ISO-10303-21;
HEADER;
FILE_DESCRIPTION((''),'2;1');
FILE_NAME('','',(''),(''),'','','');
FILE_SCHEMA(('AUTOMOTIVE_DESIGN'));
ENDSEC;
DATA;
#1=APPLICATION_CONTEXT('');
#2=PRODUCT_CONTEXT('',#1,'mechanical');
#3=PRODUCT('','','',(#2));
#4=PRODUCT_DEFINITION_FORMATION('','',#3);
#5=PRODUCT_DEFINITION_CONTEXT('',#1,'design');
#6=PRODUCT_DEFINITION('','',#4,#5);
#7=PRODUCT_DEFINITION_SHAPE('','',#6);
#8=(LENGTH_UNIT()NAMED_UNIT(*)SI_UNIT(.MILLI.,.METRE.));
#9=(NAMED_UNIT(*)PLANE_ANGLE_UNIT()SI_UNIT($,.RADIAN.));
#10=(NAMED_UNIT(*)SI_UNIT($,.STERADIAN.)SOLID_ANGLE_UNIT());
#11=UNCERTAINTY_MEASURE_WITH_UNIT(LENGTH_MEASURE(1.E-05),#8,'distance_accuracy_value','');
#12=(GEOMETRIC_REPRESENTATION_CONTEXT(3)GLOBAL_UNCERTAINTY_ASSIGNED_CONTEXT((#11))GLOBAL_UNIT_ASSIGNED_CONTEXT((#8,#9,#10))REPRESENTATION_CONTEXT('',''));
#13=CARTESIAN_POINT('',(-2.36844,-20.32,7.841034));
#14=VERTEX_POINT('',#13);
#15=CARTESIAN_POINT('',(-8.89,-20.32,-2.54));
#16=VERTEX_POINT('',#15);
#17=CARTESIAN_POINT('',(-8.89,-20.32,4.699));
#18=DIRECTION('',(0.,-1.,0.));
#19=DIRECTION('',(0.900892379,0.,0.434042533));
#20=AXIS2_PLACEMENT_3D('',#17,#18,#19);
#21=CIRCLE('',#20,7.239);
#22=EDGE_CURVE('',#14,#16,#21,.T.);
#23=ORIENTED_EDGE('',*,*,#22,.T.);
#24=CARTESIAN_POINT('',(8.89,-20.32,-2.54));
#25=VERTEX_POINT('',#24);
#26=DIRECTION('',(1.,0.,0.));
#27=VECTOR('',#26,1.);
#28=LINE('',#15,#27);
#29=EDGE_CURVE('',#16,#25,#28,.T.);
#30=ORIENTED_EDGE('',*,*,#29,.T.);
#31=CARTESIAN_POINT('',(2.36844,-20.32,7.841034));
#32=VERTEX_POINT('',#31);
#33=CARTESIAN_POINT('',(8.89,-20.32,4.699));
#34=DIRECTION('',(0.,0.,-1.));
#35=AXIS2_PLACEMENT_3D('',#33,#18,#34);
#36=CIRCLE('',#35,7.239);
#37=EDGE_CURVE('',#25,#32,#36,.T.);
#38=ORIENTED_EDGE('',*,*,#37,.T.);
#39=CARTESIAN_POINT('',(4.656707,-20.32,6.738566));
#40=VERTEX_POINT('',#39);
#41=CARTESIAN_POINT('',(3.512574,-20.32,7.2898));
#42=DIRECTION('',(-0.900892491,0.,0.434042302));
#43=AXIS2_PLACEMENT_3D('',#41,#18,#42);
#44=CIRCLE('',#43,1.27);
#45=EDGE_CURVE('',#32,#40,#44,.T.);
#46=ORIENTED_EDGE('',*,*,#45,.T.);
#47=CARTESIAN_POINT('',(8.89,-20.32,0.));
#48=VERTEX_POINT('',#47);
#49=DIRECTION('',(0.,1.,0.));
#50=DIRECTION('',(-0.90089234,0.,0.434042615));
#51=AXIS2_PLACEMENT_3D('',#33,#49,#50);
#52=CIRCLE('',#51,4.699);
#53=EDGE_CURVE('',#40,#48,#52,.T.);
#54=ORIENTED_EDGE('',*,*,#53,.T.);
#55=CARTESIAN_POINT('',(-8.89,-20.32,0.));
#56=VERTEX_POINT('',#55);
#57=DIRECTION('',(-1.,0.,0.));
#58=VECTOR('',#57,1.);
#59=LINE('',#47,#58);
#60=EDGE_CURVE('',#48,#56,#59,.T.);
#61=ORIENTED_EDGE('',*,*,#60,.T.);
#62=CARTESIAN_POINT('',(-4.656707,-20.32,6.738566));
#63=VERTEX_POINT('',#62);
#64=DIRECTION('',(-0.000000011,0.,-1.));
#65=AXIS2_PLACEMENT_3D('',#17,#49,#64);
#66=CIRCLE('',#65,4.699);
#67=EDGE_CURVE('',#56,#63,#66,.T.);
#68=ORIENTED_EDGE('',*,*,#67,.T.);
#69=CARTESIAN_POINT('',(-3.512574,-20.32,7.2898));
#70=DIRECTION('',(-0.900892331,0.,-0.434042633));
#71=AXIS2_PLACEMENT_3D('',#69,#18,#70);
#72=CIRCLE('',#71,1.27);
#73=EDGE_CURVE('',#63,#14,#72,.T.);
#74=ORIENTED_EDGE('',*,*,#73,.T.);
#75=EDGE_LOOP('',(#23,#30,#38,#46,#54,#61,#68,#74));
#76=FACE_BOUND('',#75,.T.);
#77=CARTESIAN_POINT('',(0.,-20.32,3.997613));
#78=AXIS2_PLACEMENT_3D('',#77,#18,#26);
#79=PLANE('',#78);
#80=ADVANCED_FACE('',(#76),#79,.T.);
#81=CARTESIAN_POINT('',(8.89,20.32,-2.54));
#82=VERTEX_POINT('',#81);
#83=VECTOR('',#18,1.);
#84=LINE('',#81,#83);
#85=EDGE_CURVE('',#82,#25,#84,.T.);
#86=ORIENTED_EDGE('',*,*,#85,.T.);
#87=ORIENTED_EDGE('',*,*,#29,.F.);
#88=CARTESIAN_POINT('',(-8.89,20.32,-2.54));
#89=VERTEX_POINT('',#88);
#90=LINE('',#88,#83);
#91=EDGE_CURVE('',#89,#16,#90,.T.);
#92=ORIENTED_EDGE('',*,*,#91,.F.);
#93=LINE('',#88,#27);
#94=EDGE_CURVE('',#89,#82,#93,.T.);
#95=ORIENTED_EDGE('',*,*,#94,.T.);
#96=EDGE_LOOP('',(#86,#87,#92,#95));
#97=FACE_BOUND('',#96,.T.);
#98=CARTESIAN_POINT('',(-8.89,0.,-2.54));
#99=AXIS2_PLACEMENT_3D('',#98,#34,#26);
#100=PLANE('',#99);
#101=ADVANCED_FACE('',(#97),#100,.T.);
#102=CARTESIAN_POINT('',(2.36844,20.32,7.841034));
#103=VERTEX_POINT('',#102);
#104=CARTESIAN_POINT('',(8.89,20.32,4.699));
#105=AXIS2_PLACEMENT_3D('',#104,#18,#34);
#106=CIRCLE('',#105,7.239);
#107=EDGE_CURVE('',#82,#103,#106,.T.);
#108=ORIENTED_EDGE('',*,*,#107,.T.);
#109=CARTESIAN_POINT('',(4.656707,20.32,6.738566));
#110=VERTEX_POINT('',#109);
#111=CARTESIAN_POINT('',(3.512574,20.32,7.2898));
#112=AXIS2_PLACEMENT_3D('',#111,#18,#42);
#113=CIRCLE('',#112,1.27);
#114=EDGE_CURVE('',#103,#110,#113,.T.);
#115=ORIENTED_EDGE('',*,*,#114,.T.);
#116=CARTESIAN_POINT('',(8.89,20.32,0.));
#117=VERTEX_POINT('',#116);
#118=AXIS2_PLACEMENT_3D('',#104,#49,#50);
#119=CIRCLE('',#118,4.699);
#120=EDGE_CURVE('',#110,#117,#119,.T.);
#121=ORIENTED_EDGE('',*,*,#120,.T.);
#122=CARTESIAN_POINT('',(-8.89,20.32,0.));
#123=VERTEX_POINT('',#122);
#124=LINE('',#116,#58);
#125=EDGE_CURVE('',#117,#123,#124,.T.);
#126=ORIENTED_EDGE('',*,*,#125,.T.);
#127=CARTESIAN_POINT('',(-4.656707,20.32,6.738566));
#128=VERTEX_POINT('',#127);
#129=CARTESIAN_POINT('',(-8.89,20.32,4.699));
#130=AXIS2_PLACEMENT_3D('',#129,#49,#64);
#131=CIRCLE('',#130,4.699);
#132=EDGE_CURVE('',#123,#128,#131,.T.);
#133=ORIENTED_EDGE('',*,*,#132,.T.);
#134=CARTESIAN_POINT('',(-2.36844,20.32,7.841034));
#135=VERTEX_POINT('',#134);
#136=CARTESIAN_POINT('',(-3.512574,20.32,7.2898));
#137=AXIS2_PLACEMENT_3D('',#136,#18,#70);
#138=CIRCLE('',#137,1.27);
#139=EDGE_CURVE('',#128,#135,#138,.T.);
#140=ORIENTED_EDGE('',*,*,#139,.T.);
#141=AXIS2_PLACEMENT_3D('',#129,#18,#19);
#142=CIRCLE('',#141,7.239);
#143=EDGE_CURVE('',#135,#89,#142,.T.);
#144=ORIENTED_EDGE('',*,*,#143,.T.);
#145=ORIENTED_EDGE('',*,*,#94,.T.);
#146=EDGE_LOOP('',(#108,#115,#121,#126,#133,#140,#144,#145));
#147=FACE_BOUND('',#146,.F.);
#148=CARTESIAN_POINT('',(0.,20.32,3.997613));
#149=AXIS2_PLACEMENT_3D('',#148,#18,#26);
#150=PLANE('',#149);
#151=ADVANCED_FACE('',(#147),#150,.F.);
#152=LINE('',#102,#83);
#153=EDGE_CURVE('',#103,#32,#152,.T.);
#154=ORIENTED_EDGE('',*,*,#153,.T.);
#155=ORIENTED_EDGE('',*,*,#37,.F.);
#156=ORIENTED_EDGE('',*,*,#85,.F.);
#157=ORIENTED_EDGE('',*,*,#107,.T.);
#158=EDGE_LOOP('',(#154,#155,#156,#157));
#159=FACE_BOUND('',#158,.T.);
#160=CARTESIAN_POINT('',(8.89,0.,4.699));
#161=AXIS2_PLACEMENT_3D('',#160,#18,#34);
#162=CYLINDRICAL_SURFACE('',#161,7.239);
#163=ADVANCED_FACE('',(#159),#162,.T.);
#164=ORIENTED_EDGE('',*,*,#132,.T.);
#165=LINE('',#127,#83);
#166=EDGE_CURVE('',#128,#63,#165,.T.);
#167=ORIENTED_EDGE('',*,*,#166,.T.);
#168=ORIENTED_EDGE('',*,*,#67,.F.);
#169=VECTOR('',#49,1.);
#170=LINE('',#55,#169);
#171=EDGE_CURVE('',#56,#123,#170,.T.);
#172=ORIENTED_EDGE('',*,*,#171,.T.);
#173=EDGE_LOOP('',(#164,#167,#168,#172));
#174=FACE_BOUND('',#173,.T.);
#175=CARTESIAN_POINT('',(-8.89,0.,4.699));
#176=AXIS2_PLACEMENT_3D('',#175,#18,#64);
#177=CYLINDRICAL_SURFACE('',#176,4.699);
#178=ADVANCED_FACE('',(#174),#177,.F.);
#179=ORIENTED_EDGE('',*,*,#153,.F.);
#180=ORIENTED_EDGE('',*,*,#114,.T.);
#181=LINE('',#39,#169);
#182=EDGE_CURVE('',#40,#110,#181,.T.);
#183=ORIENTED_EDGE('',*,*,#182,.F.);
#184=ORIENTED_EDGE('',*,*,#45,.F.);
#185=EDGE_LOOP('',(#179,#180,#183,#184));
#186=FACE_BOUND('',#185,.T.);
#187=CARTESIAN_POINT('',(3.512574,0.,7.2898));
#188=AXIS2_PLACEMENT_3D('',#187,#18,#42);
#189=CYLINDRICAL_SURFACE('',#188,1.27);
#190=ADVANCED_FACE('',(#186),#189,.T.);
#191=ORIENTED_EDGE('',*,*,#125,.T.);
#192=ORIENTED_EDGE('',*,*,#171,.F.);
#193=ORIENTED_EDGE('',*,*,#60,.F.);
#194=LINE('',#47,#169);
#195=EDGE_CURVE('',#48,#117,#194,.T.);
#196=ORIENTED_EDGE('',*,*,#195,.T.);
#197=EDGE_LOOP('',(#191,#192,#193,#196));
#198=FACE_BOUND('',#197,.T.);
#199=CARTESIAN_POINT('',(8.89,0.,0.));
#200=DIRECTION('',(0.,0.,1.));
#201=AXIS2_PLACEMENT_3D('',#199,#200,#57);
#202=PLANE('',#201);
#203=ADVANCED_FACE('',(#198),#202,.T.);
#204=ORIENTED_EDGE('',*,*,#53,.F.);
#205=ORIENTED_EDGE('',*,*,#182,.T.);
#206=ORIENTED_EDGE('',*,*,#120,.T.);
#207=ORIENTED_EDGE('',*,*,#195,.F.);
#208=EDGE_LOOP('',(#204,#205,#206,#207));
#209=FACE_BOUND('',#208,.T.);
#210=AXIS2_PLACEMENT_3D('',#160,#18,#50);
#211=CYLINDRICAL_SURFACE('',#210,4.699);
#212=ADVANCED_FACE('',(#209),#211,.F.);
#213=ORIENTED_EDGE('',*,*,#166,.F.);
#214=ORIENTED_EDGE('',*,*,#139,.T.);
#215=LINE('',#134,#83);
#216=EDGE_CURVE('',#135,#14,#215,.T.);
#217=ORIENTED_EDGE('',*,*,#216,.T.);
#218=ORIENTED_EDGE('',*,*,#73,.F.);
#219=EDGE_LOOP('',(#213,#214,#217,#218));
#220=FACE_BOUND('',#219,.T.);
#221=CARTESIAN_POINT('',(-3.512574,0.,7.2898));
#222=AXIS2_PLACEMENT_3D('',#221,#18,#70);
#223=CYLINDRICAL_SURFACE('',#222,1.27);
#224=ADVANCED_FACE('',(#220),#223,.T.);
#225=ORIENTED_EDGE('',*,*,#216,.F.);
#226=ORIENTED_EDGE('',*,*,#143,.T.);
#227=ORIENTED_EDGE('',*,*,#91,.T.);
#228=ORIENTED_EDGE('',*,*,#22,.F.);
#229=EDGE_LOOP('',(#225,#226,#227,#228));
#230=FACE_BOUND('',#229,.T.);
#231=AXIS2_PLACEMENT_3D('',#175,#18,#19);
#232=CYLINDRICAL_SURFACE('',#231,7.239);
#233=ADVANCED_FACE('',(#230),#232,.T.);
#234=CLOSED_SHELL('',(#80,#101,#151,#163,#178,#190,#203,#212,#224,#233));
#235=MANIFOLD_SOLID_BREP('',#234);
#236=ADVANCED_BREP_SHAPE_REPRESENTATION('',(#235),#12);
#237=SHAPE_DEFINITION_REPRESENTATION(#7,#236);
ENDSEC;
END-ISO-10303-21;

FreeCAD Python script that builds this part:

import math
import FreeCAD as App
import Part
import Sketcher
Q = App.Units.Quantity

doc = App.newDocument("Part")
params = doc.addObject("Spreadsheet::Sheet", "Params")
for row, (alias, value) in enumerate([
    ("sketch1_radius", "0.05 in"),
    ("sketch1_width", "0.7 in"),
    ("sketch1_radius2", "0.185 in"),
    ("pad1_length", "1.6 in"),
], start=1):
    params.set(f"A{row}", alias)
    params.set(f"B{row}", "=" + value)
    params.setAlias(f"B{row}", alias)

body = doc.addObject("PartDesign::Body", "Body")

# Sketch on XZ plane
sketch1 = body.newObject("Sketcher::SketchObject", "Sketch")
sketch1.AttachmentSupport = (doc.getObject("XZ_Plane"), [""])
sketch1.MapMode = "FlatFace"
sketch1.addGeometry(Part.ArcOfCircle(Part.Circle(App.Vector(-8.89, 4.699, 0), App.Vector(0, 0, 1), 4.699), math.radians(25.72439), math.radians(269.999999)), False)
sketch1.addGeometry(Part.ArcOfCircle(Part.Circle(App.Vector(-3.512574, 7.2898, 0), App.Vector(0, 0, 1), 1.27), math.radians(-154.275609), math.radians(25.72437)), False)
sketch1.addGeometry(Part.ArcOfCircle(Part.Circle(App.Vector(-8.89, 4.699, 0), App.Vector(0, 0, 1), 7.239), math.radians(25.724384), math.radians(270)), False)
sketch1.addGeometry(Part.LineSegment(App.Vector(-8.89, -2.54, 0), App.Vector(8.89, -2.54, 0)), False)
sketch1.addGeometry(Part.ArcOfCircle(Part.Circle(App.Vector(8.89, 4.699, 0), App.Vector(0, 0, 1), 7.239), math.radians(-90), math.radians(154.275616)), False)
sketch1.addGeometry(Part.ArcOfCircle(Part.Circle(App.Vector(3.512574, 7.2898, 0), App.Vector(0, 0, 1), 1.27), math.radians(154.27563), math.radians(334.275609)), False)
sketch1.addGeometry(Part.ArcOfCircle(Part.Circle(App.Vector(8.89, 4.699, 0), App.Vector(0, 0, 1), 4.699), math.radians(-89.999999), math.radians(154.27561)), False)
sketch1.addGeometry(Part.LineSegment(App.Vector(8.89, 0, 0), App.Vector(-8.89, 0, 0)), False)
sketch1.addConstraint(Sketcher.Constraint("Tangent", 0, 1, 1, 1))
sketch1.addConstraint(Sketcher.Constraint("Tangent", 1, 2, 2, 1))
sketch1.addConstraint(Sketcher.Constraint("Tangent", 2, 2, 3, 1))
sketch1.addConstraint(Sketcher.Constraint("Tangent", 3, 2, 4, 1))
sketch1.addConstraint(Sketcher.Constraint("Tangent", 4, 2, 5, 1))
sketch1.addConstraint(Sketcher.Constraint("Tangent", 5, 2, 6, 2))
sketch1.addConstraint(Sketcher.Constraint("Tangent", 6, 1, 7, 1))
sketch1.addConstraint(Sketcher.Constraint("Tangent", 7, 2, 0, 2))
sketch1.addConstraint(Sketcher.Constraint("Horizontal", 3))
sketch1.addConstraint(Sketcher.Constraint("Horizontal", 7))
sketch1.addConstraint(Sketcher.Constraint("Coincident", 2, 3, 0, 3))
sketch1.addConstraint(Sketcher.Constraint("Coincident", 6, 3, 4, 3))
sketch1.addConstraint(Sketcher.Constraint("Equal", 2, 4))
sketch1.addConstraint(Sketcher.Constraint("Symmetric", 6, 1, 7, 2, -1, 1))
sketch1.addConstraint(Sketcher.Constraint("Horizontal", 1, 3, 5, 3))
sketch1.addConstraint(Sketcher.Constraint("Radius", 1, Q("0.05 in")))
sketch1.addConstraint(Sketcher.Constraint("DistanceX", 3, 1, 3, 2, Q("0.7 in")))
sketch1.addConstraint(Sketcher.Constraint("Radius", 0, Q("0.185 in")))
sketch1.addConstraint(Sketcher.Constraint("DistanceY", -1, 1, 1, 3, Q("0.287 in")))
sketch1.setExpression("Constraints[15]", "Params.sketch1_radius")
sketch1.setExpression("Constraints[16]", "Params.sketch1_width")
sketch1.setExpression("Constraints[17]", "Params.sketch1_radius2")
pad1 = body.newObject("PartDesign::Pad", "Pad")
pad1.Profile = sketch1
pad1.setExpression("Length", "Params.pad1_length")
pad1.Midplane = True

doc.recompute()
